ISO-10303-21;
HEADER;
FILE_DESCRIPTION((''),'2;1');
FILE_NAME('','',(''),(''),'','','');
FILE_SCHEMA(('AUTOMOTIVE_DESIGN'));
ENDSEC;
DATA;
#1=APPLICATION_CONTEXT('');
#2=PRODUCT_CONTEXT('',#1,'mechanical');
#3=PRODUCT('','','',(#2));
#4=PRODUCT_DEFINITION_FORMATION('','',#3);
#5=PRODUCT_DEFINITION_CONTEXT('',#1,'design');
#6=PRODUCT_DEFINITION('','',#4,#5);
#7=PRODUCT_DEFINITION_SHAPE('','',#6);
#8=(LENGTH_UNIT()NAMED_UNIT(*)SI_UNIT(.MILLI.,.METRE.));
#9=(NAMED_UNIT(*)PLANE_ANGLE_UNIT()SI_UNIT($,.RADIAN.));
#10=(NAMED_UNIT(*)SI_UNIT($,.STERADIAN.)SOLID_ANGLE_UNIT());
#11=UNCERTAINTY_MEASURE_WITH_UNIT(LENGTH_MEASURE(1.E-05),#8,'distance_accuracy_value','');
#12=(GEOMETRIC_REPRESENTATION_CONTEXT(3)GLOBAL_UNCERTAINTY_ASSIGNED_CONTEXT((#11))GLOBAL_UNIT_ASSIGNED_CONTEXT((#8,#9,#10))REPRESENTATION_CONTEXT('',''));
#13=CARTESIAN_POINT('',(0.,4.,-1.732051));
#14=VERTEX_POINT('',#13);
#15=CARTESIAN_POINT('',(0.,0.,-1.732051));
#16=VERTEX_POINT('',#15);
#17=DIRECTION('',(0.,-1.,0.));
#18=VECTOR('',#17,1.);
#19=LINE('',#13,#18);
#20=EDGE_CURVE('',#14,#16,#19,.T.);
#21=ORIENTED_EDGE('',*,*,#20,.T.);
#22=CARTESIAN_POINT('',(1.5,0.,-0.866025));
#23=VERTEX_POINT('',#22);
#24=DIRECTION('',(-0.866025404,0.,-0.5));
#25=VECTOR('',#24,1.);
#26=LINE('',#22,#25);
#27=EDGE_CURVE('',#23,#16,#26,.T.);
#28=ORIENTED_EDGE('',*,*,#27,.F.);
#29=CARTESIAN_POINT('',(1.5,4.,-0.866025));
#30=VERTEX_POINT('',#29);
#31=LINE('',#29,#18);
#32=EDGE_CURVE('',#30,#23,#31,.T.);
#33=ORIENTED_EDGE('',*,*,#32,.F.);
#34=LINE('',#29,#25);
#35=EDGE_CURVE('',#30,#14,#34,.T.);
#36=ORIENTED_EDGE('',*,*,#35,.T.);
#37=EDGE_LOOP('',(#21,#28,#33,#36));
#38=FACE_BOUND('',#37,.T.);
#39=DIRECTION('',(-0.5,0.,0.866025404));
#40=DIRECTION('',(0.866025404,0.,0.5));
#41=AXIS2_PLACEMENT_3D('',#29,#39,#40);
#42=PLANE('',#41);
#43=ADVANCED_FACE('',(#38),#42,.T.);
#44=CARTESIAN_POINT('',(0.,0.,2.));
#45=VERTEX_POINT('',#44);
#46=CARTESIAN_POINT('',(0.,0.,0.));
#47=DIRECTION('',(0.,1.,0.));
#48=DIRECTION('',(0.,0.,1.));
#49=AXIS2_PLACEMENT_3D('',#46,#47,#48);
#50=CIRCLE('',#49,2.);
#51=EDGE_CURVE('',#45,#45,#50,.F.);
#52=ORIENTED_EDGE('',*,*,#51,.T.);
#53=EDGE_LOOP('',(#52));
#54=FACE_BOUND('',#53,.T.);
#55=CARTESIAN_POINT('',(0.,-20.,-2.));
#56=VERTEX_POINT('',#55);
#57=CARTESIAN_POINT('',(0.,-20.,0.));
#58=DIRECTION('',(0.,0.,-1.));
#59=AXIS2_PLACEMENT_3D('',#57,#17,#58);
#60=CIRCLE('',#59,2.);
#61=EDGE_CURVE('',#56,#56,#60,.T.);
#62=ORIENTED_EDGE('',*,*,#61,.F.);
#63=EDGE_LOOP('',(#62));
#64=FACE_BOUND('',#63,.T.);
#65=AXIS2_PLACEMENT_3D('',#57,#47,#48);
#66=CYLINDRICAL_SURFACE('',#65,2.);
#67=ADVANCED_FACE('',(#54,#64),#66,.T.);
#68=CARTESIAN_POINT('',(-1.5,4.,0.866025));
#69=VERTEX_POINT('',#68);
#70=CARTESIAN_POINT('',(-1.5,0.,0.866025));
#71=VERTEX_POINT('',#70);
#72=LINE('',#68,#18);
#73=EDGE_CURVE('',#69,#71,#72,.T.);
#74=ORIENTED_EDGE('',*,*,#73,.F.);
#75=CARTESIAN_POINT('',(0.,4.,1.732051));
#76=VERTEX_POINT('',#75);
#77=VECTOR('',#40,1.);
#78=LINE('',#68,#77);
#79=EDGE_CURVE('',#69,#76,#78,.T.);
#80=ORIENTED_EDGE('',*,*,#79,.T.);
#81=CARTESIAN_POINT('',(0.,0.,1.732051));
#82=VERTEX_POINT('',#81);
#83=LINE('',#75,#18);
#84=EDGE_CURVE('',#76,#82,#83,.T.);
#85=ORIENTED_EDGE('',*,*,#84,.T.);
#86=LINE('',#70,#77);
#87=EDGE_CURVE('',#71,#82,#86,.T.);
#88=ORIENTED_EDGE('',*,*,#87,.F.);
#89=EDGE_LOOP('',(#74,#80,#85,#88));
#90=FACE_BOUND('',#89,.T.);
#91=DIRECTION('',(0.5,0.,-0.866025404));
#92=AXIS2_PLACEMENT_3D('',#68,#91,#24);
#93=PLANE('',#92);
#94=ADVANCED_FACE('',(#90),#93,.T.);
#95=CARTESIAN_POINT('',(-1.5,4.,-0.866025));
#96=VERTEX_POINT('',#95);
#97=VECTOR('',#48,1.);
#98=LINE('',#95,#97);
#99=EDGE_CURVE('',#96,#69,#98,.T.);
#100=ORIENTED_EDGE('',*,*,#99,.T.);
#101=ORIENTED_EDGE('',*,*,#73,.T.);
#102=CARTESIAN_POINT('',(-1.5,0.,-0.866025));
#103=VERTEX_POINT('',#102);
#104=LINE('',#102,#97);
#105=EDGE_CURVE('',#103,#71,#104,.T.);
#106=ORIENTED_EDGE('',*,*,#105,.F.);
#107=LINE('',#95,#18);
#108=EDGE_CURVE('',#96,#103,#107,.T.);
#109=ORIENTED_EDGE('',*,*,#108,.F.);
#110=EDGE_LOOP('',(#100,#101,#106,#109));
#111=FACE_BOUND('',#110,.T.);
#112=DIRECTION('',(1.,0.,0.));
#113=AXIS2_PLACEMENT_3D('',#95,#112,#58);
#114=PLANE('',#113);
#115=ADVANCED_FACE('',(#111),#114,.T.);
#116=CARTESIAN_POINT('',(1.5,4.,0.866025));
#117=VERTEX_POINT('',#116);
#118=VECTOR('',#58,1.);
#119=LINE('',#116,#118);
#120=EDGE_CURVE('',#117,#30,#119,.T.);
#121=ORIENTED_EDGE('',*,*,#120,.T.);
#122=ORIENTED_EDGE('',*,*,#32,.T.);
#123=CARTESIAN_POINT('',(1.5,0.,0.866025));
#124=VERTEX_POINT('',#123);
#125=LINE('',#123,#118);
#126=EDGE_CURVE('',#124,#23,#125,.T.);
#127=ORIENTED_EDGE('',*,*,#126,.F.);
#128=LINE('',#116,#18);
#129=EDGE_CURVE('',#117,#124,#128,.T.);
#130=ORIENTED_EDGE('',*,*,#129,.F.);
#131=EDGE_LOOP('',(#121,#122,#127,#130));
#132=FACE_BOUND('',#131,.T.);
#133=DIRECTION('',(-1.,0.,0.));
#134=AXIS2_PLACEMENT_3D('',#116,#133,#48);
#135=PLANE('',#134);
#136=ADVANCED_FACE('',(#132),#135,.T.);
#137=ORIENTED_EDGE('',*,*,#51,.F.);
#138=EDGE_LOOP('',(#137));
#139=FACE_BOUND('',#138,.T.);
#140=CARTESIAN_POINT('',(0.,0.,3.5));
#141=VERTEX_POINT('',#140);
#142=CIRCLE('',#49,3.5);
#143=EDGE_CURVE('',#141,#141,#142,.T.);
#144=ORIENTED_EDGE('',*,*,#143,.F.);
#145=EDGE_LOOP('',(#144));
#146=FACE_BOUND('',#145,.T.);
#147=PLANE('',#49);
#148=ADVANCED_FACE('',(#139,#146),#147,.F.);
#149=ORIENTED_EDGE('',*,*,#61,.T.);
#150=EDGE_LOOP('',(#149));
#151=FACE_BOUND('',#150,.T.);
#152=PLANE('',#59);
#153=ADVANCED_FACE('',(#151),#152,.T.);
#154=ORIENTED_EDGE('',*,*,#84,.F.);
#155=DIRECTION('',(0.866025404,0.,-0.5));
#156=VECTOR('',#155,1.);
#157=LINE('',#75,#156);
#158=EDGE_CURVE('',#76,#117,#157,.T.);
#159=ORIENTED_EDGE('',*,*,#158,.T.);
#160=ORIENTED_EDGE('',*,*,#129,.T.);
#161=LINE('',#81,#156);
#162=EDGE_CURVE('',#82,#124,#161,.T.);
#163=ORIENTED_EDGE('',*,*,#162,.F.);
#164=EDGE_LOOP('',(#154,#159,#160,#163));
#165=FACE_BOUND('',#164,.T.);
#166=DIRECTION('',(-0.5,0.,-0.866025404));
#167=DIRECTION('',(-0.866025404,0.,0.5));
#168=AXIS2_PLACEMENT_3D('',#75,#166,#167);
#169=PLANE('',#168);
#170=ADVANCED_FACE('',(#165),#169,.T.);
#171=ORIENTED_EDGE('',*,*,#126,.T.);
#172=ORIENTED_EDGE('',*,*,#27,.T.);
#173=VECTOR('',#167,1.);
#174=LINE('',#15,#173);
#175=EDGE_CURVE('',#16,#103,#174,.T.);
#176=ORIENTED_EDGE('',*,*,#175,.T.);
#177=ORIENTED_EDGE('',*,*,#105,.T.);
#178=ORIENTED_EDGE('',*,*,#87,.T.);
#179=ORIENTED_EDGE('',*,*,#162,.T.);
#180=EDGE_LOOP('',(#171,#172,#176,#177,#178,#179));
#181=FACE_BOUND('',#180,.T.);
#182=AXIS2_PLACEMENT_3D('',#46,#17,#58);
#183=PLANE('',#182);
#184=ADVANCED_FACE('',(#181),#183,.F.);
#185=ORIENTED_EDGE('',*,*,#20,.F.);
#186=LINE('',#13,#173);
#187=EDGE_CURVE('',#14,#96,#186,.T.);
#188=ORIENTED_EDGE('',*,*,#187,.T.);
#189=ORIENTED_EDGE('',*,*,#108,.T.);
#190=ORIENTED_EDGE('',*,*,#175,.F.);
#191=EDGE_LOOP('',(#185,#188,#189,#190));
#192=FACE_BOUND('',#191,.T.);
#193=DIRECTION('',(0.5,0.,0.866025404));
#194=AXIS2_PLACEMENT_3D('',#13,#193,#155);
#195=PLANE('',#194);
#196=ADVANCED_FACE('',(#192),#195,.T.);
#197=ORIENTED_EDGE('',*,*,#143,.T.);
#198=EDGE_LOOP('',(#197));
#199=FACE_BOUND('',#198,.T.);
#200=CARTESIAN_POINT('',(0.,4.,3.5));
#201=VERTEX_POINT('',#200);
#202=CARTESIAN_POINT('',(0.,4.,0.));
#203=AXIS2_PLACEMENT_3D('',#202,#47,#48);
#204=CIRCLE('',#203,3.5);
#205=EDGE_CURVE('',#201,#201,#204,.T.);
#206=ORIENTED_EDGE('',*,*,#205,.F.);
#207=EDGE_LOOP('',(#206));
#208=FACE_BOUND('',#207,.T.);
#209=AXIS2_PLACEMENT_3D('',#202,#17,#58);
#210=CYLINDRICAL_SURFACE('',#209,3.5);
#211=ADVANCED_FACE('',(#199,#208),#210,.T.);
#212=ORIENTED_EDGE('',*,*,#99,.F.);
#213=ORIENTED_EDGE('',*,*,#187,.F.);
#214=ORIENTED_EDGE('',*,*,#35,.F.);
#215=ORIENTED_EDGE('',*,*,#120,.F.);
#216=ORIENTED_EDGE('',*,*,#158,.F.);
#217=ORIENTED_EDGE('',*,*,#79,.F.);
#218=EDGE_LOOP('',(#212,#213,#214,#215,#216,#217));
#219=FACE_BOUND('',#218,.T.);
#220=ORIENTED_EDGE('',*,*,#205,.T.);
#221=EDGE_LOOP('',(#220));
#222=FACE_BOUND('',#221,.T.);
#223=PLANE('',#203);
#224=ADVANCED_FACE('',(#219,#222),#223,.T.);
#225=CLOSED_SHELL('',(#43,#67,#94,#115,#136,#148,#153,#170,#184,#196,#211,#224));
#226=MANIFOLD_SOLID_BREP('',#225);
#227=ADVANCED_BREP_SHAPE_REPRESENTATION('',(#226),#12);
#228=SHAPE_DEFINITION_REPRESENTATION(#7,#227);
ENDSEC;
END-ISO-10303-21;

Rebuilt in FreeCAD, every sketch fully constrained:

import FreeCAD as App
import Part
import Sketcher

V = App.Vector
Q = App.Units.Quantity


def add_polygon(sketch, points):
    """Adds a closed chain of lines whose ends are joined by coincident constraints."""
    first, n = sketch.GeometryCount, len(points)
    for a, b in zip(points, points[1:] + points[:1]):
        sketch.addGeometry(Part.LineSegment(App.Vector(*a, 0), App.Vector(*b, 0)), False)
    for i in range(n):
        sketch.addConstraint(Sketcher.Constraint("Coincident", first + i, 2, first + (i + 1) % n, 1))

doc = App.newDocument("Part")
params = doc.addObject("Spreadsheet::Sheet", "Params")
for row, (alias, value) in enumerate([
    ("sketch1_diameter", "7 mm"),
    ("pad1_length", "4 mm"),
    ("sketch2_diameter", "4 mm"),
    ("pad2_length", "20 mm"),
], start=1):
    params.set(f"A{row}", alias)
    params.set(f"B{row}", "=" + value)
    params.setAlias(f"B{row}", alias)

body = doc.addObject("PartDesign::Body", "Body")

# Sketch on XZ plane
sketch1 = body.newObject("Sketcher::SketchObject", "Sketch")
sketch1.AttachmentSupport = (doc.getObject("XZ_Plane"), [""])
sketch1.MapMode = "FlatFace"
sketch1.addGeometry(Part.Circle(V(0, 0, 0), V(0, 0, 1), 3.5), False)  # 0
add_polygon(sketch1, [(-1.5, -0.9), (0, -1.7), (1.5, -0.9), (1.5, 0.9), (0, 1.7), (-1.5, 0.9)])  # lines 1-6
sketch1.addConstraint([
    Sketcher.Constraint("Vertical", 3),
    Sketcher.Constraint("Vertical", 6),
    Sketcher.Constraint("Coincident", 0, 3, -1, 1),
    Sketcher.Constraint("Symmetric", 1, 2, 4, 2, -1, 1),
    Sketcher.Constraint("Symmetric", 2, 2, 5, 2, -1, 1),
    Sketcher.Constraint("PointOnObject", 1, 2, -2),
    Sketcher.Constraint("Parallel", 1, 4),
    Sketcher.Constraint("Horizontal", 3, 2, 5, 2),
    Sketcher.Constraint("Diameter", 0, Q("7 mm")),
    Sketcher.Constraint("Angle", 1, Q("-30 deg")),
    Sketcher.Constraint("DistanceX", 5, 2, 3, 2, Q("3 mm")),
    Sketcher.Constraint("DistanceY", 3, 1, 3, 2, Q("1.732051 mm")),
])
sketch1.setExpression("Constraints[14]", "Params.sketch1_diameter")
pad1 = body.newObject("PartDesign::Pad", "Pad")
pad1.Profile = sketch1
pad1.setExpression("Length", "Params.pad1_length")
pad1.Reversed = True

# Sketch on XZ plane
sketch2 = body.newObject("Sketcher::SketchObject", "Sketch001")
sketch2.AttachmentSupport = (doc.getObject("XZ_Plane"), [""])
sketch2.MapMode = "FlatFace"
sketch2.addGeometry(Part.Circle(V(0, 0, 0), V(0, 0, 1), 2), False)
sketch2.addConstraint([
    Sketcher.Constraint("Coincident", 0, 3, -1, 1),
    Sketcher.Constraint("Diameter", 0, Q("4 mm")),
])
sketch2.setExpression("Constraints[1]", "Params.sketch2_diameter")
pad2 = body.newObject("PartDesign::Pad", "Pad001")
pad2.Profile = sketch2
pad2.setExpression("Length", "Params.pad2_length")

doc.recompute()
